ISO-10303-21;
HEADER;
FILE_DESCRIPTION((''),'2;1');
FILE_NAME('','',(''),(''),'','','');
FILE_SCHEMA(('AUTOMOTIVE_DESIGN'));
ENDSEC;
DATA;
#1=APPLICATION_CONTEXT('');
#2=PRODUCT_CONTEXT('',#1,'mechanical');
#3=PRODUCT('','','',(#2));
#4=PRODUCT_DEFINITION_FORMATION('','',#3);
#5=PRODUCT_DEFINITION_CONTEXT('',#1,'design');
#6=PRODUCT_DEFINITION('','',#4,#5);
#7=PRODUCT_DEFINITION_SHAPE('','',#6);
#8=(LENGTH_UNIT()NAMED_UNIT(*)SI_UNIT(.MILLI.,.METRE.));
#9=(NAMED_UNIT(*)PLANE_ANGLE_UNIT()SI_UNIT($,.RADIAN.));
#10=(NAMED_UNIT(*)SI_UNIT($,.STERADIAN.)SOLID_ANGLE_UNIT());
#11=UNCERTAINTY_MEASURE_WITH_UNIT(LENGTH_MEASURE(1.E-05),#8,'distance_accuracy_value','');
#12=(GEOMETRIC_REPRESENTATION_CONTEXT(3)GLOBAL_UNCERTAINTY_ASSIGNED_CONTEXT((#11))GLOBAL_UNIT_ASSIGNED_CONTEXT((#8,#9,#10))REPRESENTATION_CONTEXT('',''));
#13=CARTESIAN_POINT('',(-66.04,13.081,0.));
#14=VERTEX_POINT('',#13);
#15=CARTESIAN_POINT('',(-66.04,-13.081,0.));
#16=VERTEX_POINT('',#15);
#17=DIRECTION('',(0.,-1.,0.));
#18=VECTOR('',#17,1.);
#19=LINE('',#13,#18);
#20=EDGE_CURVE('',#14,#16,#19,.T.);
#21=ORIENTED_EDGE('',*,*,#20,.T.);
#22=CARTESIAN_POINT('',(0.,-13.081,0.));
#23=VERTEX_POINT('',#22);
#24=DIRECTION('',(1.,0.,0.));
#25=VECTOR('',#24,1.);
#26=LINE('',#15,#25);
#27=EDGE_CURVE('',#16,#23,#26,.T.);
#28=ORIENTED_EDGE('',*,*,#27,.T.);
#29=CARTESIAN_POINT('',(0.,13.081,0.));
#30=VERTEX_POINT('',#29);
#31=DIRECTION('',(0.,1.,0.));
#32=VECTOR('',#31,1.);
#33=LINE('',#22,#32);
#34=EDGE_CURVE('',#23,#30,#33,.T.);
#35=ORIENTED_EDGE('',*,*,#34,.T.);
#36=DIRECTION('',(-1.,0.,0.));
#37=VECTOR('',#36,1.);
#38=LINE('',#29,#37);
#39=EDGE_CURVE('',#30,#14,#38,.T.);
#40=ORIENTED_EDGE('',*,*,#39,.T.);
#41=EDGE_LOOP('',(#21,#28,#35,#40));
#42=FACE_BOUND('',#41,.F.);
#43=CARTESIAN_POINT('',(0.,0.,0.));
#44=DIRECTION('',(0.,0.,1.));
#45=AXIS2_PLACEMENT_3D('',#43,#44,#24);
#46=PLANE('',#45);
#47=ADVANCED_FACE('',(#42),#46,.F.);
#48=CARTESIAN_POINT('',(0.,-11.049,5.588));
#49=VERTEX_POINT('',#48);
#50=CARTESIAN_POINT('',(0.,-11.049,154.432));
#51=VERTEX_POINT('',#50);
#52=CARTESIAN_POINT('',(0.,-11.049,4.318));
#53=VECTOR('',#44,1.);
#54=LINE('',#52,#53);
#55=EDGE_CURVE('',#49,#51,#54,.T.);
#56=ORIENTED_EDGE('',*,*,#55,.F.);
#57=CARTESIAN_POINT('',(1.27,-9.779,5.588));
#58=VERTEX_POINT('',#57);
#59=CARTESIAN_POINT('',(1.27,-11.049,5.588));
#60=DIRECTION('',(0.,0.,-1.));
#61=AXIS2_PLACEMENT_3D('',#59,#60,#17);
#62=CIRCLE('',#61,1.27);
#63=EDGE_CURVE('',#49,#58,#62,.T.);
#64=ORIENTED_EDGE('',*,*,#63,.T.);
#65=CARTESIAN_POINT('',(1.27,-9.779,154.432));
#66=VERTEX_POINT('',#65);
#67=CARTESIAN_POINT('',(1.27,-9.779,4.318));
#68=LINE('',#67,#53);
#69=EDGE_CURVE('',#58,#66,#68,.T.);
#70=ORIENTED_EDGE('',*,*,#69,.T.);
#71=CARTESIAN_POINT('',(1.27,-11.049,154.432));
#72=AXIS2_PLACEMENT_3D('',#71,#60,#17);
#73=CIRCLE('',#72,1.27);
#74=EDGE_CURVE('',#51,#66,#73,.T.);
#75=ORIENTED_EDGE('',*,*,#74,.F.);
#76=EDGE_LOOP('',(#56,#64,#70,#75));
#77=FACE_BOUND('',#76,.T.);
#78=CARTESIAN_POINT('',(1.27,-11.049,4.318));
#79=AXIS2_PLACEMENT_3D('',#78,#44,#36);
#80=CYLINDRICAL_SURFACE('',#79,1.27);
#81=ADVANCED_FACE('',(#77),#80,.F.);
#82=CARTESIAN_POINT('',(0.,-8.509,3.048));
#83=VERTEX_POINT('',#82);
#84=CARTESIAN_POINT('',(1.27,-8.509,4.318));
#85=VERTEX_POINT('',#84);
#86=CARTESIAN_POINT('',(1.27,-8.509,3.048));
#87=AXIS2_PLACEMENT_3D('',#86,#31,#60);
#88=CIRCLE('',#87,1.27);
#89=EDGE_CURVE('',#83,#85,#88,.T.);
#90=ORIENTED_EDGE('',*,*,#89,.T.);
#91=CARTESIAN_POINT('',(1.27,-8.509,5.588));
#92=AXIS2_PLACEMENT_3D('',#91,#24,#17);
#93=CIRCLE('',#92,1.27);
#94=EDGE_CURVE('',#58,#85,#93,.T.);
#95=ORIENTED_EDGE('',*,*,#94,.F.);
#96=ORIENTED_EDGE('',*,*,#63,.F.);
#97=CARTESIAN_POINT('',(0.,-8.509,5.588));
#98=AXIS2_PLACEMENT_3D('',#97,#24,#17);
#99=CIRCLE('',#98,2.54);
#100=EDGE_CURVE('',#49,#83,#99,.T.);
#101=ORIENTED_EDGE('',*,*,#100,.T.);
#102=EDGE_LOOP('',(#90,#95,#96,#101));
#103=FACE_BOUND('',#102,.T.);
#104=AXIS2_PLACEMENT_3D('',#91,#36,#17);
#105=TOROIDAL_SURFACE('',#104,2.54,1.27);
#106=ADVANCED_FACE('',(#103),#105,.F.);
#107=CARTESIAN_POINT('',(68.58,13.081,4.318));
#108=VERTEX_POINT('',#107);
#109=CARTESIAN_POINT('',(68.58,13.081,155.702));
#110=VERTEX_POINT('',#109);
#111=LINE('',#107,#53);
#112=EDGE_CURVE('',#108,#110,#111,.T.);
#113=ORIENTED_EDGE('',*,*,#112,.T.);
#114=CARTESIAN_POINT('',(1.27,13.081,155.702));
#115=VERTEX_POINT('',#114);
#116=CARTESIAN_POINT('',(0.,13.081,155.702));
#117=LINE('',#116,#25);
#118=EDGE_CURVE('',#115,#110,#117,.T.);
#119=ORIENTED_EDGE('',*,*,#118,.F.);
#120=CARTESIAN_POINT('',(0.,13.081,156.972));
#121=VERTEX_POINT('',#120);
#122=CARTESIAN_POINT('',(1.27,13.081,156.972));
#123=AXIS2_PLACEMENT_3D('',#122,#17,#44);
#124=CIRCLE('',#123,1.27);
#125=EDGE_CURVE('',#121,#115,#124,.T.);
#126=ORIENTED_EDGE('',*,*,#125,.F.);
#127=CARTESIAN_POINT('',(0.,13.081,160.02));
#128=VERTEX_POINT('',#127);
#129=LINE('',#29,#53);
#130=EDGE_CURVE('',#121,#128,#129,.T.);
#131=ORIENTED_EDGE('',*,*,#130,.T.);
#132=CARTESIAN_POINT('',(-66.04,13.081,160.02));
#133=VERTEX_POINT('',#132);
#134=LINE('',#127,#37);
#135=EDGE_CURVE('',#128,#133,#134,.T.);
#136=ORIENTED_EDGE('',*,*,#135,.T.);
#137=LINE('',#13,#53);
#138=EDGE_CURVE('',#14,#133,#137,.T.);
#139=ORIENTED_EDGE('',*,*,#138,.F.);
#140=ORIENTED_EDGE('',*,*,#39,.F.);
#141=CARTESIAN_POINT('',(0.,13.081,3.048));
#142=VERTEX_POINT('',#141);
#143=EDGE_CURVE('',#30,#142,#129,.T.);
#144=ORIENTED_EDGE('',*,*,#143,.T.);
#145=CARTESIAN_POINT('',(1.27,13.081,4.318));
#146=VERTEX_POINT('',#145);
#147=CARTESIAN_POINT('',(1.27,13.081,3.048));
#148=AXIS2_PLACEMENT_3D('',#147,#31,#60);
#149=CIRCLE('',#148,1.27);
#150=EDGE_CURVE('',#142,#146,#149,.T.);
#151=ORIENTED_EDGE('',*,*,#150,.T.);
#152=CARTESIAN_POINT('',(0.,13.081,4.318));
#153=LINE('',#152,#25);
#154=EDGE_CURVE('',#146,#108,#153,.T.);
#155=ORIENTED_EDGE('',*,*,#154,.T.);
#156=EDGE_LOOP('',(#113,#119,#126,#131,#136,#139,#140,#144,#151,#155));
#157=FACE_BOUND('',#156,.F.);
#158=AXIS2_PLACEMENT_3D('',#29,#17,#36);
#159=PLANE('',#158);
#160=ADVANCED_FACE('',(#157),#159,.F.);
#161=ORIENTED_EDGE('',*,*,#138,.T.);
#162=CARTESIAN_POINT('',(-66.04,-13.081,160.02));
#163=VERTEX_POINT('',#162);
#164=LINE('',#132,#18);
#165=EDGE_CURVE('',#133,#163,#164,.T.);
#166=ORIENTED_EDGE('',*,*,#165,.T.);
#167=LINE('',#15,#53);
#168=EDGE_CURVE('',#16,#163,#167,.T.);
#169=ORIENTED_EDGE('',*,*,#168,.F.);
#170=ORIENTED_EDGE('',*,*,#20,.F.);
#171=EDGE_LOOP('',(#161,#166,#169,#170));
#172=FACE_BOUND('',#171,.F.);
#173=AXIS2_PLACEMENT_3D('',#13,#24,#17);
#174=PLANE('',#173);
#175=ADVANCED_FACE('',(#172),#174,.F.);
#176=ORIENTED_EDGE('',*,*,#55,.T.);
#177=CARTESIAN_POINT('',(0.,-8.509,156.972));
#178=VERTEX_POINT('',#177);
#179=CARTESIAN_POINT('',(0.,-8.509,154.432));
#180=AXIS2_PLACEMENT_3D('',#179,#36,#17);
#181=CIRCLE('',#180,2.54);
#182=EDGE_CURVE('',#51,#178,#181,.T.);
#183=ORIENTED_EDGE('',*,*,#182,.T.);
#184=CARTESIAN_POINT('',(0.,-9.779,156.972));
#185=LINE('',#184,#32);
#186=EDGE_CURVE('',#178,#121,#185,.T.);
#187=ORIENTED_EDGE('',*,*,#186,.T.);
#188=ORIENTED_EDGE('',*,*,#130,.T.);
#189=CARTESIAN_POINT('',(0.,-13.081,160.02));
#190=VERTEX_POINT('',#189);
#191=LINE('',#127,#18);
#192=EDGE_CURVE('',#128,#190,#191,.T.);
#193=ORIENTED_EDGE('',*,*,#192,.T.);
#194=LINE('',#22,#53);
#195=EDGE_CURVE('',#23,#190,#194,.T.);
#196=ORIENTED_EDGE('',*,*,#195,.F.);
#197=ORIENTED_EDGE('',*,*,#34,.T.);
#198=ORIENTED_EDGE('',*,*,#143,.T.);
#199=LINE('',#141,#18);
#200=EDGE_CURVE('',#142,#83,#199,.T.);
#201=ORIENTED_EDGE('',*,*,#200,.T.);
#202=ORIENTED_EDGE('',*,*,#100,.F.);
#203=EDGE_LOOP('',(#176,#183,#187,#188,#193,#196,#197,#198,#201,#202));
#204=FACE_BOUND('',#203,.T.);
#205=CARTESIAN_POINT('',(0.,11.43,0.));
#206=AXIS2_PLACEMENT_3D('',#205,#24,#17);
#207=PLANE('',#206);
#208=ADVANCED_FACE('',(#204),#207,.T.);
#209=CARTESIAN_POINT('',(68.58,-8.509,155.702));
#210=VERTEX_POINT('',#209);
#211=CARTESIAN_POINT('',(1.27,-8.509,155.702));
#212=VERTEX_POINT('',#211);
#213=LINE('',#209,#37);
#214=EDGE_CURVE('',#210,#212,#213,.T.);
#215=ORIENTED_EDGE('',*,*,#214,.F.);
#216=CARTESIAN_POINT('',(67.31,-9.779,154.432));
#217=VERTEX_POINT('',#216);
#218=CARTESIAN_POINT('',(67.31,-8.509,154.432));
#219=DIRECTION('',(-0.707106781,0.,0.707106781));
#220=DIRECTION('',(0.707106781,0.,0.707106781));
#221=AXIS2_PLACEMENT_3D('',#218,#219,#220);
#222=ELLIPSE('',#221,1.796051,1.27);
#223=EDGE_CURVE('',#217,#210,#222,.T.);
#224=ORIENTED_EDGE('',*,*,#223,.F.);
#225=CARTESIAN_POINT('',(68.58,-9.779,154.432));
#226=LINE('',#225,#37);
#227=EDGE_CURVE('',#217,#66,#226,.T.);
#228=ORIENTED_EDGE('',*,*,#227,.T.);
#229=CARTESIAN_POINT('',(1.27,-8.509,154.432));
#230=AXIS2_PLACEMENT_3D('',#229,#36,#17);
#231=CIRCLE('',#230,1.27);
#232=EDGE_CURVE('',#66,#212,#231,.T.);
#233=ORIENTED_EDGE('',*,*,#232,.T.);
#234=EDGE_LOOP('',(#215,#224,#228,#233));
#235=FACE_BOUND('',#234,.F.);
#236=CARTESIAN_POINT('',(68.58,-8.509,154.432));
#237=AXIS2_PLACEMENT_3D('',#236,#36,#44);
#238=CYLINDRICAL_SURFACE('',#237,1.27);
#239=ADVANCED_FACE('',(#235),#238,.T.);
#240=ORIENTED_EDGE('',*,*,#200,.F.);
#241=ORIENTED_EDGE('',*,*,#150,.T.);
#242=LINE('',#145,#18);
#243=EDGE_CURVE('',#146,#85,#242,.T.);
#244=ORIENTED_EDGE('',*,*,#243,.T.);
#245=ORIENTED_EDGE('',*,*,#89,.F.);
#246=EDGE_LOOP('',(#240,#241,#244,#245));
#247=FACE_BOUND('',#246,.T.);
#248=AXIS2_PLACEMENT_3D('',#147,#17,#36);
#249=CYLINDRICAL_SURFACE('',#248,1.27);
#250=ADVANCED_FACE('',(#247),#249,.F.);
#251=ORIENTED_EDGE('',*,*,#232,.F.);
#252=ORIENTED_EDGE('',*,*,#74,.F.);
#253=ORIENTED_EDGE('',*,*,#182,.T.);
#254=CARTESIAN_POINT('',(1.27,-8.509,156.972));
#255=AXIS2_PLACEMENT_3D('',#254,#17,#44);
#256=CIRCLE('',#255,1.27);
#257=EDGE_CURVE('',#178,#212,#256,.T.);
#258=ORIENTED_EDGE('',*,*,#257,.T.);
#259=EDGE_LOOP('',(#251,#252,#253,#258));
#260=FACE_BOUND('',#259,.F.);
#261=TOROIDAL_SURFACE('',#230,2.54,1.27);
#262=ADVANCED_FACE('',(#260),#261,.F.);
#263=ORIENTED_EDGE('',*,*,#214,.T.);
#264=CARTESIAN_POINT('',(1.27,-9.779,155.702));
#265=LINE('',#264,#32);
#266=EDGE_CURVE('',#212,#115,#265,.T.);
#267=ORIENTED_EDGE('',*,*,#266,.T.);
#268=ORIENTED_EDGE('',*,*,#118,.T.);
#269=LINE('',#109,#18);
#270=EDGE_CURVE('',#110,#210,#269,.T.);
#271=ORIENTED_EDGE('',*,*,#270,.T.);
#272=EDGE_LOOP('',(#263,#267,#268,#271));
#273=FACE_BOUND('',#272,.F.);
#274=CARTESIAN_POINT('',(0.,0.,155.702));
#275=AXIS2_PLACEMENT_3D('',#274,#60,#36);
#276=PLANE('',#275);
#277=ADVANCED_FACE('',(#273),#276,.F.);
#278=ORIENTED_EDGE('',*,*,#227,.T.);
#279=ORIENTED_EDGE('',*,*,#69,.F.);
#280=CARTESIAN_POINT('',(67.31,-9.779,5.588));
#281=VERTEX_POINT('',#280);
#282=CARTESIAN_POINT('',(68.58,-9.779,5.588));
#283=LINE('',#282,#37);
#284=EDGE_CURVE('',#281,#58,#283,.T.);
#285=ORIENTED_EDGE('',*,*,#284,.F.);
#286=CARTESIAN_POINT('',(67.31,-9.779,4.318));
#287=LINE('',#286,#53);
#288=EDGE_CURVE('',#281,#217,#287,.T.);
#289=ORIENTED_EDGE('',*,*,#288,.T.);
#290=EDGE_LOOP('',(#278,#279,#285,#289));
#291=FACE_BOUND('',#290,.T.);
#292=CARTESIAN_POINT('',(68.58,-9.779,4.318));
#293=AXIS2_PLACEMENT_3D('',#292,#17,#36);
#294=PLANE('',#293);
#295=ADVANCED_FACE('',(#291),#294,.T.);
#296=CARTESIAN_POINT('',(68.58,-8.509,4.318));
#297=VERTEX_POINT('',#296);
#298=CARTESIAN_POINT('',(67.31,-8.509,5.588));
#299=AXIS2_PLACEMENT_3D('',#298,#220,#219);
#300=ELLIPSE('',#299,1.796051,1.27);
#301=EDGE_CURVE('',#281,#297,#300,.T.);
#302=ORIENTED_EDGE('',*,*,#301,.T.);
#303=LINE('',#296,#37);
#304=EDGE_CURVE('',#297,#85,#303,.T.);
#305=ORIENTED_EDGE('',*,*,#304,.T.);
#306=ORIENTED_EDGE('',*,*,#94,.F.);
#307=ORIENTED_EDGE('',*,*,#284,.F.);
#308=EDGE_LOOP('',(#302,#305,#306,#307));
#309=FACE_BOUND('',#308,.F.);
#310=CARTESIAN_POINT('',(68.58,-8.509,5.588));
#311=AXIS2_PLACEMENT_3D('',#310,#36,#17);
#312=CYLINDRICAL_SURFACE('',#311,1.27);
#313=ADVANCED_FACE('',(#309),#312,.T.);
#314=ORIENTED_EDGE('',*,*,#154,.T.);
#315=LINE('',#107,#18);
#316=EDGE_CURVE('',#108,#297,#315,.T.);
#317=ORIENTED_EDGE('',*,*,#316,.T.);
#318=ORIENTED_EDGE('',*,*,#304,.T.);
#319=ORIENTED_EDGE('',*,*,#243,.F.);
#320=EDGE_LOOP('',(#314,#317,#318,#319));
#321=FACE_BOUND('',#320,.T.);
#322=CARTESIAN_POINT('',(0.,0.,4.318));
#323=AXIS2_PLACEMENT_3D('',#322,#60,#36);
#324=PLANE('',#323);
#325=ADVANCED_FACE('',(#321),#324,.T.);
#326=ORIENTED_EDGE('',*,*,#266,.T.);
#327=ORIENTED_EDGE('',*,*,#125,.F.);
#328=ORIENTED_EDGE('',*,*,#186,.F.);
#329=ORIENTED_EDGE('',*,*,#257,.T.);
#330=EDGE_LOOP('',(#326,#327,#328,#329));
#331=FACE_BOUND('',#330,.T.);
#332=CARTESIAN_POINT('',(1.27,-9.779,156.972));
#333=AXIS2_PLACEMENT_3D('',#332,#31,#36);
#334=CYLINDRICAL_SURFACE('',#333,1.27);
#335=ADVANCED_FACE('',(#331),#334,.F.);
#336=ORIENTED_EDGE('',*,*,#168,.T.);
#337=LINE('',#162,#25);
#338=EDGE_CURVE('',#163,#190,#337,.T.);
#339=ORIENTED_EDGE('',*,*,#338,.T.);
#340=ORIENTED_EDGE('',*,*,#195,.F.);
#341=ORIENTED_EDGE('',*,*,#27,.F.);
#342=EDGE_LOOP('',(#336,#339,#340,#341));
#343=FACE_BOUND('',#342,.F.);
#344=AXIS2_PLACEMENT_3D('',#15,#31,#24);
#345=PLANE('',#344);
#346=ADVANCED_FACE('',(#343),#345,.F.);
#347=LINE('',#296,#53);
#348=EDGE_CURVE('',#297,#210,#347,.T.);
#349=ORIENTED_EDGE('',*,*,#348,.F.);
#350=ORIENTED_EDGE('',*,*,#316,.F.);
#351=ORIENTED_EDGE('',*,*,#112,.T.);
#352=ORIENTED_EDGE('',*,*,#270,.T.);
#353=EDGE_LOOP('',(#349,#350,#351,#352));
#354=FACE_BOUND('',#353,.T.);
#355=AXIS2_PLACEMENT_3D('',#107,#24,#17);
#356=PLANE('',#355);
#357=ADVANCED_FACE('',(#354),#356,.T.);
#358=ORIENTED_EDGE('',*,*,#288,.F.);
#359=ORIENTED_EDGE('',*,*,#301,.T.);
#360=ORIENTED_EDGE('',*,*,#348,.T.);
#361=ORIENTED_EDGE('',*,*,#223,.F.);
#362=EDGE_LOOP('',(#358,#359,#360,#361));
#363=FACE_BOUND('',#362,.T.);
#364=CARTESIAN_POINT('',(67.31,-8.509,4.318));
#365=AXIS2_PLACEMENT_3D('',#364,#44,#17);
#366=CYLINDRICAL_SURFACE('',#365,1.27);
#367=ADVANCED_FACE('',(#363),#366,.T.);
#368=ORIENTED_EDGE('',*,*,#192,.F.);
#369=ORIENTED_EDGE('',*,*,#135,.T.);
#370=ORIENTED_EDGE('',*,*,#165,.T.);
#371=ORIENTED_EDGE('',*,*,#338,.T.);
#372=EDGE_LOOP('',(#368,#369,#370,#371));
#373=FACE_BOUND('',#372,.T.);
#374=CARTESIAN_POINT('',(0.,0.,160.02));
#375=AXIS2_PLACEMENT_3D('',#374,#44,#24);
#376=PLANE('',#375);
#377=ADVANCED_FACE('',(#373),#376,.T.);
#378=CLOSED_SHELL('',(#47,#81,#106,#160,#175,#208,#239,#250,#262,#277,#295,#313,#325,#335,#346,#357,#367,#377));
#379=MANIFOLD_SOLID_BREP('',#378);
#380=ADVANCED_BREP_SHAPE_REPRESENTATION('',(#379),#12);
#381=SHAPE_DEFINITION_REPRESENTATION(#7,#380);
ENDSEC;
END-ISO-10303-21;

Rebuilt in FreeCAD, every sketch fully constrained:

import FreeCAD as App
import Part
import Sketcher
from FreeCAD import Vector
Q = App.Units.Quantity


def edges_at(feature, points):
    """Names of the edges that pass closest to the given points."""
    edges = feature.Shape.Edges
    near = lambda p: min(range(len(edges)), key=lambda i: edges[i].distToShape(Part.Vertex(*p))[0])
    return sorted({f"Edge{near(p) + 1}" for p in points})


def add_polygon(sketch, points):
    """Adds a closed chain of lines whose ends are joined by coincident constraints."""
    first, n = sketch.GeometryCount, len(points)
    for a, b in zip(points, points[1:] + points[:1]):
        sketch.addGeometry(Part.LineSegment(App.Vector(*a, 0), App.Vector(*b, 0)), False)
    for i in range(n):
        sketch.addConstraint(Sketcher.Constraint("Coincident", first + i, 2, first + (i + 1) % n, 1))

doc = App.newDocument("Part")
body = doc.addObject("PartDesign::Body", "Body")

# Sketch on XY plane
sketch1 = body.newObject("Sketcher::SketchObject", "Sketch")
sketch1.AttachmentSupport = (doc.getObject("XY_Plane"), [""])
sketch1.MapMode = "FlatFace"
add_polygon(sketch1, [(0, -13.081), (0, 13.081), (-66.04, 13.081), (-66.04, -13.081)])  # lines 0-3
sketch1.addConstraint(Sketcher.Constraint("Vertical", 0))
sketch1.addConstraint(Sketcher.Constraint("Horizontal", 1))
sketch1.addConstraint(Sketcher.Constraint("Vertical", 2))
sketch1.addConstraint(Sketcher.Constraint("Horizontal", 3))
sketch1.addConstraint(Sketcher.Constraint("Symmetric", 0, 2, 3, 2, -1, 1))
sketch1.addConstraint(Sketcher.Constraint("DistanceX", 1, 2, 1, 1, Q("2.6 in")))
sketch1.addConstraint(Sketcher.Constraint("DistanceY", 0, 1, 0, 2, Q("1.03 in")))
pad1 = body.newObject("PartDesign::Pad", "Pad")
pad1.Profile = sketch1
pad1.Length = Q("6.3 in")

# Sketch on XY plane
sketch2 = body.newObject("Sketcher::SketchObject", "Sketch001")
sketch2.AttachmentSupport = (doc.getObject("XY_Plane"), [""])
sketch2.MapMode = "FlatFace"
sketch2.AttachmentOffset = App.Placement(Vector(0, 0, 0.17 * 25.4), App.Rotation())
add_polygon(sketch2, [(0, -9.779), (0, 13.081), (68.58, 13.081), (68.58, -9.779)])  # lines 0-3
sketch2.addConstraint(Sketcher.Constraint("Vertical", 0))
sketch2.addConstraint(Sketcher.Constraint("Horizontal", 1))
sketch2.addConstraint(Sketcher.Constraint("Vertical", 2))
sketch2.addConstraint(Sketcher.Constraint("Horizontal", 3))
sketch2.addConstraint(Sketcher.Constraint("PointOnObject", 0, 2, -2))
sketch2.addConstraint(Sketcher.Constraint("DistanceY", 0, 1, 0, 2, Q("0.9 in")))
sketch2.addConstraint(Sketcher.Constraint("DistanceX", 1, 1, 1, 2, Q("2.7 in")))
sketch2.addConstraint(Sketcher.Constraint("DistanceY", -1, 1, 0, 2, Q("0.515 in")))
pad2 = body.newObject("PartDesign::Pad", "Pad001")
pad2.Profile = sketch2
pad2.Length = Q("5.96 in")
doc.recompute()

fillet = body.newObject("PartDesign::Fillet", "Fillet")
fillet.Base = (pad2, edges_at(pad2, [
    (34.29, -9.779, 4.318),
    (68.58, -9.779, 80.01),
    (34.29, -9.779, 155.702),
    (0, -9.779, 80.01),
    (0, 1.651, 155.702),
    (0, 1.651, 4.318),
]))
fillet.Radius = Q("0.05 in")

doc.recompute()
